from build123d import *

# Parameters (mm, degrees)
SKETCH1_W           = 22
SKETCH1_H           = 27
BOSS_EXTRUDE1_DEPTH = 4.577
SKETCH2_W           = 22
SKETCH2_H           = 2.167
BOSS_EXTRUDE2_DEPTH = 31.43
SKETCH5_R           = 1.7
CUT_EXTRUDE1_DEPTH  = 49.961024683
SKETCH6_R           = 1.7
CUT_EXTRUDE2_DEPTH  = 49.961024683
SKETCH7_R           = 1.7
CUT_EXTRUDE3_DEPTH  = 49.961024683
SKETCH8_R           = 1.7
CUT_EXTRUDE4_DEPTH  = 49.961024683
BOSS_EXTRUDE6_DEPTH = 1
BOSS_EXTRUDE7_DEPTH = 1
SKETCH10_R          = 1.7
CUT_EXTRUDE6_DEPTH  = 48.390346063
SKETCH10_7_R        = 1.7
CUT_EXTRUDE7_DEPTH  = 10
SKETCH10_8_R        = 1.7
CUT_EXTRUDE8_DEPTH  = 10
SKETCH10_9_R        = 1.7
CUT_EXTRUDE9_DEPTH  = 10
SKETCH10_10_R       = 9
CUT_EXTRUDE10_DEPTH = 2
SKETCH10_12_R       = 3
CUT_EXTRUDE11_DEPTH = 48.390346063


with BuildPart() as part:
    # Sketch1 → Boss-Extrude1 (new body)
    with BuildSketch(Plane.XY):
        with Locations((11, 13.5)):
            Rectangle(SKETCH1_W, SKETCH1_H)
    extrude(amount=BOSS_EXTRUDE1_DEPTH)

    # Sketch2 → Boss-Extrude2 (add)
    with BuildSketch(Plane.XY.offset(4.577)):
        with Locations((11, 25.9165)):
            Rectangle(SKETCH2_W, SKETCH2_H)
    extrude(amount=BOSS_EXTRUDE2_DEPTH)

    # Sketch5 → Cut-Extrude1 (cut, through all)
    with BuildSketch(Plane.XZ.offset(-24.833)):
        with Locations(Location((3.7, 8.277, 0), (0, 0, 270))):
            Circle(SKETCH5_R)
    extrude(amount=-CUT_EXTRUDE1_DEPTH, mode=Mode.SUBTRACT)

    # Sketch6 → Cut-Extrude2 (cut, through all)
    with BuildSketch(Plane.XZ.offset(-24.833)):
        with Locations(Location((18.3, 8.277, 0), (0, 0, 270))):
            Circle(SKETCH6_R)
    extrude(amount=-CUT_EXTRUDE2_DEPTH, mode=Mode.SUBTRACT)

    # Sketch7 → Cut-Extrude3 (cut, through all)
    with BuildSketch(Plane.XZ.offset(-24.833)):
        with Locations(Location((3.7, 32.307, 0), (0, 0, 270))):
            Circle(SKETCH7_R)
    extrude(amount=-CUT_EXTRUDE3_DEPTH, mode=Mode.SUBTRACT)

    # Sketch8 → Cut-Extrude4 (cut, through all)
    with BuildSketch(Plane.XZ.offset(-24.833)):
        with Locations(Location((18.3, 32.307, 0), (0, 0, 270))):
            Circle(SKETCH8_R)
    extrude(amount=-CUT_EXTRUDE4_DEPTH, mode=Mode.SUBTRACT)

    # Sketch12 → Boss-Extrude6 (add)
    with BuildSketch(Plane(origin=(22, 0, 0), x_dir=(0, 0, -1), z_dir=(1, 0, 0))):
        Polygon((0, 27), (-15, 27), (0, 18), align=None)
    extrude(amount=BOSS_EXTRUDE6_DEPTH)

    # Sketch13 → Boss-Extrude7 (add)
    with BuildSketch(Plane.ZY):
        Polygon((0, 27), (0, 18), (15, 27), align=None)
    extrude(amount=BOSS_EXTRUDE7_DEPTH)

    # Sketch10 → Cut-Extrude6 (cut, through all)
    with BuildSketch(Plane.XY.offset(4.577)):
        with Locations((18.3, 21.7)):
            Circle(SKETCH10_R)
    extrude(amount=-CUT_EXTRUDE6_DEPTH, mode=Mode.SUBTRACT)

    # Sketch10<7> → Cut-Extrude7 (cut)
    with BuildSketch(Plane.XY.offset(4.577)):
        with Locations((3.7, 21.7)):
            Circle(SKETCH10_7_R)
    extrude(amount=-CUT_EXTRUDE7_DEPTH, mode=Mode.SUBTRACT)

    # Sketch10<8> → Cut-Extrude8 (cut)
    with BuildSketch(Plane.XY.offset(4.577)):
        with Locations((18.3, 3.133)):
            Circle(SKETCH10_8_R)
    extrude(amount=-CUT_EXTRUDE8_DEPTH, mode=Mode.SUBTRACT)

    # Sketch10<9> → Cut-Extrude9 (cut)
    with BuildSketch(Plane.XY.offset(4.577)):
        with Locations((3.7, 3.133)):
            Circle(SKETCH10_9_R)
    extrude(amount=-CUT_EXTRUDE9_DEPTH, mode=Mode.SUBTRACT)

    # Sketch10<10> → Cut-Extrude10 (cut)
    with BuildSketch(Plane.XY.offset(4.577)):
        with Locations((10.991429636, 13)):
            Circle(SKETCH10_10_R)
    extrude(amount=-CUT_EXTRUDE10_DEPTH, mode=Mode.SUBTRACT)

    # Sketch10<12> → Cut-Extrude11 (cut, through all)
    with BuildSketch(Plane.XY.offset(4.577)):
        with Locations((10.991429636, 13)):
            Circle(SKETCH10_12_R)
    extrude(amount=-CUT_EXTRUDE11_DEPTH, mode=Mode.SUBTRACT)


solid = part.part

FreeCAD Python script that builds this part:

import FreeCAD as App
import Part
import Sketcher

doc = App.newDocument("Part")
body = doc.addObject("PartDesign::Body", "Body")

# Sketch on XY plane
sketch1 = doc.addObject("Sketcher::SketchObject", "Sketch")
body.addObject(sketch1)
sketch1.AttachmentSupport = (doc.XY_Plane, [""])
sketch1.MapMode = "FlatFace"
sketch1.addGeometry(Part.LineSegment(App.Vector(0, 27, 0), App.Vector(0, 0, 0)), False)
sketch1.addGeometry(Part.LineSegment(App.Vector(0, 0, 0), App.Vector(22, 0, 0)), False)
sketch1.addGeometry(Part.LineSegment(App.Vector(22, 0, 0), App.Vector(22, 27, 0)), False)
sketch1.addGeometry(Part.LineSegment(App.Vector(22, 27, 0), App.Vector(0, 27, 0)), False)
sketch1.addConstraint(Sketcher.Constraint("Coincident", 0, 2, 1, 1))
sketch1.addConstraint(Sketcher.Constraint("Coincident", 1, 2, 2, 1))
sketch1.addConstraint(Sketcher.Constraint("Coincident", 2, 2, 3, 1))
sketch1.addConstraint(Sketcher.Constraint("Coincident", 3, 2, 0, 1))
sketch1.addConstraint(Sketcher.Constraint("Vertical", 0))
sketch1.addConstraint(Sketcher.Constraint("Horizontal", 1))
sketch1.addConstraint(Sketcher.Constraint("Vertical", 2))
sketch1.addConstraint(Sketcher.Constraint("Horizontal", 3))
sketch1.addConstraint(Sketcher.Constraint("Coincident", 0, 2, -1, 1))
sketch1.addConstraint(Sketcher.Constraint("DistanceX", 1, 1, 1, 2, 22.0))
sketch1.addConstraint(Sketcher.Constraint("DistanceY", 0, 2, 0, 1, 27.0))
pad1 = doc.addObject("PartDesign::Pad", "Pad")
body.addObject(pad1)
pad1.Profile = sketch1
pad1.Length = 4.577

# Sketch on XY plane
sketch2 = doc.addObject("Sketcher::SketchObject", "Sketch001")
body.addObject(sketch2)
sketch2.AttachmentSupport = (doc.XY_Plane, [""])
sketch2.MapMode = "FlatFace"
sketch2.AttachmentOffset = App.Placement(App.Vector(0, 0, 4.577), App.Rotation())
sketch2.addGeometry(Part.LineSegment(App.Vector(0, 27, 0), App.Vector(0, 24.833, 0)), False)
sketch2.addGeometry(Part.LineSegment(App.Vector(0, 24.833, 0), App.Vector(22, 24.833, 0)), False)
sketch2.addGeometry(Part.LineSegment(App.Vector(22, 24.833, 0), App.Vector(22, 27, 0)), False)
sketch2.addGeometry(Part.LineSegment(App.Vector(22, 27, 0), App.Vector(0, 27, 0)), False)
sketch2.addConstraint(Sketcher.Constraint("Coincident", 0, 2, 1, 1))
sketch2.addConstraint(Sketcher.Constraint("Coincident", 1, 2, 2, 1))
sketch2.addConstraint(Sketcher.Constraint("Coincident", 2, 2, 3, 1))
sketch2.addConstraint(Sketcher.Constraint("Coincident", 3, 2, 0, 1))
sketch2.addConstraint(Sketcher.Constraint("Vertical", 0))
sketch2.addConstraint(Sketcher.Constraint("Horizontal", 1))
sketch2.addConstraint(Sketcher.Constraint("Vertical", 2))
sketch2.addConstraint(Sketcher.Constraint("Horizontal", 3))
sketch2.addConstraint(Sketcher.Constraint("PointOnObject", 0, 2, -2))
sketch2.addConstraint(Sketcher.Constraint("DistanceX", 1, 1, 1, 2, 22.0))
sketch2.addConstraint(Sketcher.Constraint("DistanceY", -1, 1, 2, 2, 27.0))
sketch2.addConstraint(Sketcher.Constraint("DistanceY", 0, 2, 0, 1, 2.167))
pad2 = doc.addObject("PartDesign::Pad", "Pad001")
body.addObject(pad2)
pad2.Profile = sketch2
pad2.Length = 31.43

# Sketch on XZ plane
sketch3 = doc.addObject("Sketcher::SketchObject", "Sketch002")
body.addObject(sketch3)
sketch3.AttachmentSupport = (doc.XZ_Plane, [""])
sketch3.MapMode = "FlatFace"
sketch3.AttachmentOffset = App.Placement(App.Vector(0, 0, -24.833), App.Rotation())
sketch3.addGeometry(Part.Circle(App.Vector(3.7, 8.277, 0), App.Vector(0, 0, 1), 1.7), False)
sketch3.addConstraint(Sketcher.Constraint("Diameter", 0, 3.4))
sketch3.addConstraint(Sketcher.Constraint("DistanceX", -1, 1, 0, 3, 3.7))
sketch3.addConstraint(Sketcher.Constraint("DistanceY", -1, 1, 0, 3, 8.277))
pocket1 = doc.addObject("PartDesign::Pocket", "Pocket")
body.addObject(pocket1)
pocket1.Profile = sketch3
pocket1.Type = "ThroughAll"

# Sketch on XZ plane
sketch4 = doc.addObject("Sketcher::SketchObject", "Sketch003")
body.addObject(sketch4)
sketch4.AttachmentSupport = (doc.XZ_Plane, [""])
sketch4.MapMode = "FlatFace"
sketch4.AttachmentOffset = App.Placement(App.Vector(0, 0, -24.833), App.Rotation())
sketch4.addGeometry(Part.Circle(App.Vector(18.3, 8.277, 0), App.Vector(0, 0, 1), 1.7), False)
sketch4.addConstraint(Sketcher.Constraint("Diameter", 0, 3.4))
sketch4.addConstraint(Sketcher.Constraint("DistanceX", -1, 1, 0, 3, 18.3))
sketch4.addConstraint(Sketcher.Constraint("DistanceY", -1, 1, 0, 3, 8.277))
pocket2 = doc.addObject("PartDesign::Pocket", "Pocket001")
body.addObject(pocket2)
pocket2.Profile = sketch4
pocket2.Type = "ThroughAll"

# Sketch on XZ plane
sketch5 = doc.addObject("Sketcher::SketchObject", "Sketch004")
body.addObject(sketch5)
sketch5.AttachmentSupport = (doc.XZ_Plane, [""])
sketch5.MapMode = "FlatFace"
sketch5.AttachmentOffset = App.Placement(App.Vector(0, 0, -24.833), App.Rotation())
sketch5.addGeometry(Part.Circle(App.Vector(3.7, 32.307, 0), App.Vector(0, 0, 1), 1.7), False)
sketch5.addConstraint(Sketcher.Constraint("Diameter", 0, 3.4))
sketch5.addConstraint(Sketcher.Constraint("DistanceX", -1, 1, 0, 3, 3.7))
sketch5.addConstraint(Sketcher.Constraint("DistanceY", -1, 1, 0, 3, 32.307))
pocket3 = doc.addObject("PartDesign::Pocket", "Pocket002")
body.addObject(pocket3)
pocket3.Profile = sketch5
pocket3.Type = "ThroughAll"

# Sketch on XZ plane
sketch6 = doc.addObject("Sketcher::SketchObject", "Sketch005")
body.addObject(sketch6)
sketch6.AttachmentSupport = (doc.XZ_Plane, [""])
sketch6.MapMode = "FlatFace"
sketch6.AttachmentOffset = App.Placement(App.Vector(0, 0, -24.833), App.Rotation())
sketch6.addGeometry(Part.Circle(App.Vector(18.3, 32.307, 0), App.Vector(0, 0, 1), 1.7), False)
sketch6.addConstraint(Sketcher.Constraint("Diameter", 0, 3.4))
sketch6.addConstraint(Sketcher.Constraint("DistanceX", -1, 1, 0, 3, 18.3))
sketch6.addConstraint(Sketcher.Constraint("DistanceY", -1, 1, 0, 3, 32.307))
pocket4 = doc.addObject("PartDesign::Pocket", "Pocket003")
body.addObject(pocket4)
pocket4.Profile = sketch6
pocket4.Type = "ThroughAll"

# Sketch on YZ plane
sketch7 = doc.addObject("Sketcher::SketchObject", "Sketch006")
body.addObject(sketch7)
sketch7.AttachmentSupport = (doc.YZ_Plane, [""])
sketch7.MapMode = "FlatFace"
sketch7.AttachmentOffset = App.Placement(App.Vector(0, 0, 22), App.Rotation())
sketch7.addGeometry(Part.LineSegment(App.Vector(27, 0, 0), App.Vector(27, 15, 0)), False)
sketch7.addGeometry(Part.LineSegment(App.Vector(27, 15, 0), App.Vector(18, 0, 0)), False)
sketch7.addGeometry(Part.LineSegment(App.Vector(18, 0, 0), App.Vector(27, 0, 0)), False)
sketch7.addConstraint(Sketcher.Constraint("Coincident", 0, 2, 1, 1))
sketch7.addConstraint(Sketcher.Constraint("Coincident", 1, 2, 2, 1))
sketch7.addConstraint(Sketcher.Constraint("Coincident", 2, 2, 0, 1))
sketch7.addConstraint(Sketcher.Constraint("Vertical", 0))
sketch7.addConstraint(Sketcher.Constraint("Horizontal", 2))
sketch7.addConstraint(Sketcher.Constraint("PointOnObject", 1, 2, -1))
sketch7.addConstraint(Sketcher.Constraint("DistanceX", 2, 1, 2, 2, 9.0))
sketch7.addConstraint(Sketcher.Constraint("DistanceY", 0, 1, 0, 2, 15.0))
sketch7.addConstraint(Sketcher.Constraint("DistanceX", -1, 1, 0, 2, 27.0))
pad3 = doc.addObject("PartDesign::Pad", "Pad002")
body.addObject(pad3)
pad3.Profile = sketch7
pad3.Length = 1

# Sketch on YZ plane
sketch8 = doc.addObject("Sketcher::SketchObject", "Sketch007")
body.addObject(sketch8)
sketch8.AttachmentSupport = (doc.YZ_Plane, [""])
sketch8.MapMode = "FlatFace"
sketch8.addGeometry(Part.LineSegment(App.Vector(27, 0, 0), App.Vector(18, 0, 0)), False)
sketch8.addGeometry(Part.LineSegment(App.Vector(18, 0, 0), App.Vector(27, 15, 0)), False)
sketch8.addGeometry(Part.LineSegment(App.Vector(27, 15, 0), App.Vector(27, 0, 0)), False)
sketch8.addConstraint(Sketcher.Constraint("Coincident", 0, 2, 1, 1))
sketch8.addConstraint(Sketcher.Constraint("Coincident", 1, 2, 2, 1))
sketch8.addConstraint(Sketcher.Constraint("Coincident", 2, 2, 0, 1))
sketch8.addConstraint(Sketcher.Constraint("Horizontal", 0))
sketch8.addConstraint(Sketcher.Constraint("Vertical", 2))
sketch8.addConstraint(Sketcher.Constraint("PointOnObject", 0, 2, -1))
sketch8.addConstraint(Sketcher.Constraint("DistanceX", 0, 2, 0, 1, 9.0))
sketch8.addConstraint(Sketcher.Constraint("DistanceY", 2, 2, 2, 1, 15.0))
sketch8.addConstraint(Sketcher.Constraint("DistanceX", -1, 1, 0, 2, 18.0))
pad4 = doc.addObject("PartDesign::Pad", "Pad003")
body.addObject(pad4)
pad4.Profile = sketch8
pad4.Length = 1
pad4.Reversed = True

# Sketch on XY plane
sketch9 = doc.addObject("Sketcher::SketchObject", "Sketch008")
body.addObject(sketch9)
sketch9.AttachmentSupport = (doc.XY_Plane, [""])
sketch9.MapMode = "FlatFace"
sketch9.AttachmentOffset = App.Placement(App.Vector(0, 0, 4.577), App.Rotation())
sketch9.addGeometry(Part.Circle(App.Vector(18.3, 21.7, 0), App.Vector(0, 0, 1), 1.7), False)
sketch9.addConstraint(Sketcher.Constraint("Diameter", 0, 3.4))
sketch9.addConstraint(Sketcher.Constraint("DistanceX", -1, 1, 0, 3, 18.3))
sketch9.addConstraint(Sketcher.Constraint("DistanceY", -1, 1, 0, 3, 21.7))
pocket5 = doc.addObject("PartDesign::Pocket", "Pocket004")
body.addObject(pocket5)
pocket5.Profile = sketch9
pocket5.Type = "ThroughAll"

# Sketch on XY plane
sketch10 = doc.addObject("Sketcher::SketchObject", "Sketch009")
body.addObject(sketch10)
sketch10.AttachmentSupport = (doc.XY_Plane, [""])
sketch10.MapMode = "FlatFace"
sketch10.AttachmentOffset = App.Placement(App.Vector(0, 0, 4.577), App.Rotation())
sketch10.addGeometry(Part.Circle(App.Vector(3.7, 21.7, 0), App.Vector(0, 0, 1), 1.7), False)
sketch10.addConstraint(Sketcher.Constraint("Diameter", 0, 3.4))
sketch10.addConstraint(Sketcher.Constraint("DistanceX", -1, 1, 0, 3, 3.7))
sketch10.addConstraint(Sketcher.Constraint("DistanceY", -1, 1, 0, 3, 21.7))
pocket6 = doc.addObject("PartDesign::Pocket", "Pocket005")
body.addObject(pocket6)
pocket6.Profile = sketch10
pocket6.Length = 10

# Sketch on XY plane
sketch11 = doc.addObject("Sketcher::SketchObject", "Sketch010")
body.addObject(sketch11)
sketch11.AttachmentSupport = (doc.XY_Plane, [""])
sketch11.MapMode = "FlatFace"
sketch11.AttachmentOffset = App.Placement(App.Vector(0, 0, 4.577), App.Rotation())
sketch11.addGeometry(Part.Circle(App.Vector(18.3, 3.133, 0), App.Vector(0, 0, 1), 1.7), False)
sketch11.addConstraint(Sketcher.Constraint("Diameter", 0, 3.4))
sketch11.addConstraint(Sketcher.Constraint("DistanceX", -1, 1, 0, 3, 18.3))
sketch11.addConstraint(Sketcher.Constraint("DistanceY", -1, 1, 0, 3, 3.133))
pocket7 = doc.addObject("PartDesign::Pocket", "Pocket006")
body.addObject(pocket7)
pocket7.Profile = sketch11
pocket7.Length = 10

# Sketch on XY plane
sketch12 = doc.addObject("Sketcher::SketchObject", "Sketch011")
body.addObject(sketch12)
sketch12.AttachmentSupport = (doc.XY_Plane, [""])
sketch12.MapMode = "FlatFace"
sketch12.AttachmentOffset = App.Placement(App.Vector(0, 0, 4.577), App.Rotation())
sketch12.addGeometry(Part.Circle(App.Vector(3.7, 3.133, 0), App.Vector(0, 0, 1), 1.7), False)
sketch12.addConstraint(Sketcher.Constraint("Diameter", 0, 3.4))
sketch12.addConstraint(Sketcher.Constraint("DistanceX", -1, 1, 0, 3, 3.7))
sketch12.addConstraint(Sketcher.Constraint("DistanceY", -1, 1, 0, 3, 3.133))
pocket8 = doc.addObject("PartDesign::Pocket", "Pocket007")
body.addObject(pocket8)
pocket8.Profile = sketch12
pocket8.Length = 10

# Sketch on XY plane
sketch13 = doc.addObject("Sketcher::SketchObject", "Sketch012")
body.addObject(sketch13)
sketch13.AttachmentSupport = (doc.XY_Plane, [""])
sketch13.MapMode = "FlatFace"
sketch13.AttachmentOffset = App.Placement(App.Vector(0, 0, 4.577), App.Rotation())
sketch13.addGeometry(Part.Circle(App.Vector(10.99143, 13, 0), App.Vector(0, 0, 1), 9), False)
sketch13.addConstraint(Sketcher.Constraint("Diameter", 0, 18.0))
sketch13.addConstraint(Sketcher.Constraint("DistanceY", -1, 1, 0, 3, 13.0))
sketch13.addConstraint(Sketcher.Constraint("DistanceX", -1, 1, 0, 3, 10.99143))
pocket9 = doc.addObject("PartDesign::Pocket", "Pocket008")
body.addObject(pocket9)
pocket9.Profile = sketch13
pocket9.Length = 2

# Sketch on XY plane
sketch14 = doc.addObject("Sketcher::SketchObject", "Sketch013")
body.addObject(sketch14)
sketch14.AttachmentSupport = (doc.XY_Plane, [""])
sketch14.MapMode = "FlatFace"
sketch14.AttachmentOffset = App.Placement(App.Vector(0, 0, 4.577), App.Rotation())
sketch14.addGeometry(Part.Circle(App.Vector(10.99143, 13, 0), App.Vector(0, 0, 1), 3), False)
sketch14.addConstraint(Sketcher.Constraint("Diameter", 0, 6.0))
sketch14.addConstraint(Sketcher.Constraint("DistanceY", -1, 1, 0, 3, 13.0))
sketch14.addConstraint(Sketcher.Constraint("DistanceX", -1, 1, 0, 3, 10.99143))
pocket10 = doc.addObject("PartDesign::Pocket", "Pocket009")
body.addObject(pocket10)
pocket10.Profile = sketch14
pocket10.Type = "ThroughAll"

doc.recompute()
